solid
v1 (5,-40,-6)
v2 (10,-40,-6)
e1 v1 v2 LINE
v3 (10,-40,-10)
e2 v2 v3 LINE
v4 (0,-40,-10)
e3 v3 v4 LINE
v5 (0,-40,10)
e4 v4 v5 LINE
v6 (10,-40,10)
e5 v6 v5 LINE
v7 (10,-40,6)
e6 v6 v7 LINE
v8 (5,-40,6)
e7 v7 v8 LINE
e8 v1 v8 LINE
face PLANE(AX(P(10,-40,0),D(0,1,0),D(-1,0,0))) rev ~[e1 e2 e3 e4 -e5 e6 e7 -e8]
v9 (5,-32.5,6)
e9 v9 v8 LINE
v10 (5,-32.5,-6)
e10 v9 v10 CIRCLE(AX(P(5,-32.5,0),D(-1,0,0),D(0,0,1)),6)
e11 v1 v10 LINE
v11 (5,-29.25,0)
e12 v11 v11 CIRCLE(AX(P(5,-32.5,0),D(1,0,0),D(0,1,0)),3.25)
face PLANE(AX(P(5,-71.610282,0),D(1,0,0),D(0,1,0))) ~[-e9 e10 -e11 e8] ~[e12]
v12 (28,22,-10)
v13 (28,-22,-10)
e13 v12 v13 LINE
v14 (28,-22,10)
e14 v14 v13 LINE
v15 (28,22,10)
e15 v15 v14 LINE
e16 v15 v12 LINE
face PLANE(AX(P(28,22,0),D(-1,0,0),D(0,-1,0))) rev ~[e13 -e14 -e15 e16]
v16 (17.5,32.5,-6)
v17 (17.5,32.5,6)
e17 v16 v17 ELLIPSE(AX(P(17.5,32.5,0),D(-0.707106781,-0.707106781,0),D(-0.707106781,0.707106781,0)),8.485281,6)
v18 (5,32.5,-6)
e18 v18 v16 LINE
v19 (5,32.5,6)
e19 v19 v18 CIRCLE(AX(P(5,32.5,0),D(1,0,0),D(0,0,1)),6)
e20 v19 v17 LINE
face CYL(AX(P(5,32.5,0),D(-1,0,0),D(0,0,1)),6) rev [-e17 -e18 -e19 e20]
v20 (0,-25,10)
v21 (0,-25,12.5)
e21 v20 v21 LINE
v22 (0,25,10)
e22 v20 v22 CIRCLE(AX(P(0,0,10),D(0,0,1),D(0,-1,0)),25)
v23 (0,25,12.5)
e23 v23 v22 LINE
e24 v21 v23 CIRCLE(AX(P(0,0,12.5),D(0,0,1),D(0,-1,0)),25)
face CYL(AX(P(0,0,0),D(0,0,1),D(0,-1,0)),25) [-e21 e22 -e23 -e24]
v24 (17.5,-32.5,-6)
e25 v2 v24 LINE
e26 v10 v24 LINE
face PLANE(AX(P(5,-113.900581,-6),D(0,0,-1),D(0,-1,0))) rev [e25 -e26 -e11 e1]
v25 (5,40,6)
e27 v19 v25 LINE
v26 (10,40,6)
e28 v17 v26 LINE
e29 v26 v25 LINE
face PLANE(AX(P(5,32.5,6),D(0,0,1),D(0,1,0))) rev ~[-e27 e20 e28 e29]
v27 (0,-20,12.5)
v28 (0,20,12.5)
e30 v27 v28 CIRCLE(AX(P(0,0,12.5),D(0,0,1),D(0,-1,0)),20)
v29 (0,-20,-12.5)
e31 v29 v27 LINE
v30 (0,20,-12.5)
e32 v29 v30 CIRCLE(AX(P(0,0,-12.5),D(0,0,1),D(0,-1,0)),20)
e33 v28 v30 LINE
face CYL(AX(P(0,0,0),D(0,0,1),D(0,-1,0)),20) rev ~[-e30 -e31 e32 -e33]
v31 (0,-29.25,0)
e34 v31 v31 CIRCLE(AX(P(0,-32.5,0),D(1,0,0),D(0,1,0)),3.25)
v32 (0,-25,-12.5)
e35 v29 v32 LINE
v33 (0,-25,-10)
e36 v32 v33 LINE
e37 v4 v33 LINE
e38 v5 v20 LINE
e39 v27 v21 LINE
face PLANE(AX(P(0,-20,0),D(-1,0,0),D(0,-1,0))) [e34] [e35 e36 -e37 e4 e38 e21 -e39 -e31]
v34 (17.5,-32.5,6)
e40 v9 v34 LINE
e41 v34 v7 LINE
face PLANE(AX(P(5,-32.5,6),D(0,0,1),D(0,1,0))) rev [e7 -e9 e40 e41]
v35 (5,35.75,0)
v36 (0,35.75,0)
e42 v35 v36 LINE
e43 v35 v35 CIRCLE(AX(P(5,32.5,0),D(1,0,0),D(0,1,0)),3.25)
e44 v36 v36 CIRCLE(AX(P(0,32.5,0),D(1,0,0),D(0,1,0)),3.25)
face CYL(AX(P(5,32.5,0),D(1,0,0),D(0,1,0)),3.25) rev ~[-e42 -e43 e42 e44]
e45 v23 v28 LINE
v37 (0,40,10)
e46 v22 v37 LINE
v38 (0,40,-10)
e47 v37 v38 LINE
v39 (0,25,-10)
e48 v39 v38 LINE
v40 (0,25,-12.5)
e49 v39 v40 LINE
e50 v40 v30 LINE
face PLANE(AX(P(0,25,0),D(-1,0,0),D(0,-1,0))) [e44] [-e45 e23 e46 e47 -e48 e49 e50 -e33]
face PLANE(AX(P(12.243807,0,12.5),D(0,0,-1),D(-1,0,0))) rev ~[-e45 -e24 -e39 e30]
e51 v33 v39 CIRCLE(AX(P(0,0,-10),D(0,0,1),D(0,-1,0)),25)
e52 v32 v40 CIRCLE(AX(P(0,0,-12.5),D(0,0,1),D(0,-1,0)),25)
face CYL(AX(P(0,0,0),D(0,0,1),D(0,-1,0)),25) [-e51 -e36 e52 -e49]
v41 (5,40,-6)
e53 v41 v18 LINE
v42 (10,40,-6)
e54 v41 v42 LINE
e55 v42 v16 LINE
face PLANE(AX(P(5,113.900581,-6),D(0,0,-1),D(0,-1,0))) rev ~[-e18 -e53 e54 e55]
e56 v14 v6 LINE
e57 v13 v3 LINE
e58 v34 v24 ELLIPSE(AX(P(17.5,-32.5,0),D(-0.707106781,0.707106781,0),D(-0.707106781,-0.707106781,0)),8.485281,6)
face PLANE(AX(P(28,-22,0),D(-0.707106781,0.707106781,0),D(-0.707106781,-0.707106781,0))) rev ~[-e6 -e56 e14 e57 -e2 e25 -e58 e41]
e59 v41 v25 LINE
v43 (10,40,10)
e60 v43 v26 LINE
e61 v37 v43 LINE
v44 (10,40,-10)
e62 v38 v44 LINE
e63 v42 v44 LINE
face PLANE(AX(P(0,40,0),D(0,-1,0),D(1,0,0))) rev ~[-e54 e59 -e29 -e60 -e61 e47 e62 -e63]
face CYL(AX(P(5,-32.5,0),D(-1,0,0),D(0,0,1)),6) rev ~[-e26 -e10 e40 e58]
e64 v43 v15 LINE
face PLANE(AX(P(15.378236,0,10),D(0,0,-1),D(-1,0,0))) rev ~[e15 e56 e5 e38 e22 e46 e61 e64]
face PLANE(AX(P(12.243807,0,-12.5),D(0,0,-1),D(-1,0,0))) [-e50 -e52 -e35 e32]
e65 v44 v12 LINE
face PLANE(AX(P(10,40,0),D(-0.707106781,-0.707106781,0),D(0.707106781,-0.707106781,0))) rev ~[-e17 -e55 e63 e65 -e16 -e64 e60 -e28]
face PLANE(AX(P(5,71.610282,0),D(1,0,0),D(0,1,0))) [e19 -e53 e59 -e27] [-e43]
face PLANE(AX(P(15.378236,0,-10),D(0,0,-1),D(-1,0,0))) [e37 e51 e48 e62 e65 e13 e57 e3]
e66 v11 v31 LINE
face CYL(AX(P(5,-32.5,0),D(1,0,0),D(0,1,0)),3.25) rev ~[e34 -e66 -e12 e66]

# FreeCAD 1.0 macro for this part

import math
import FreeCAD as App
import Part
import Sketcher

V = App.Vector
Q = App.Units.Quantity

doc = App.newDocument("Part")
body = doc.addObject("PartDesign::Body", "Body")

sketch1 = body.newObject("Sketcher::SketchObject", "Sketch")
sketch1.AttachmentSupport = (doc.getObject("XY_Plane"), [""])
sketch1.MapMode = "FlatFace"
sketch1.addGeometry([
    Part.ArcOfCircle(Part.Circle(V(0, 0, 0), V(0, 0, 1), 20), math.radians(-90), math.radians(90)),
    Part.LineSegment(V(0, -20, 0), V(0, -25, 0)),
    Part.ArcOfCircle(Part.Circle(V(0, 0, 0), V(0, 0, 1), 25), math.radians(-90), math.radians(90)),
    Part.LineSegment(V(0, 25, 0), V(0, 20, 0)),
], False)
sketch1.addConstraint([
    Sketcher.Constraint("Coincident", 0, 1, 1, 1),
    Sketcher.Constraint("Coincident", 1, 2, 2, 1),
    Sketcher.Constraint("Coincident", 2, 2, 3, 1),
    Sketcher.Constraint("Coincident", 3, 2, 0, 2),
    Sketcher.Constraint("Vertical", 1),
    Sketcher.Constraint("Vertical", 3),
    Sketcher.Constraint("Coincident", 0, 3, -1, 1),
    Sketcher.Constraint("Coincident", 2, 3, -1, 1),
    Sketcher.Constraint("PointOnObject", 0, 1, -2),
    Sketcher.Constraint("PointOnObject", 2, 2, -2),
    Sketcher.Constraint("Radius", 0, Q("20 mm")),
    Sketcher.Constraint("Radius", 2, Q("25 mm")),
])
pad1 = body.newObject("PartDesign::Pad", "Pad")
pad1.Profile = sketch1
pad1.Length = 25
pad1.Midplane = True

sketch2 = body.newObject("Sketcher::SketchObject", "Sketch001")
sketch2.AttachmentSupport = (doc.getObject("XY_Plane"), [""])
sketch2.MapMode = "FlatFace"
sketch2.addGeometry([
    Part.LineSegment(V(0, 40, 0), V(0, 25, 0)),
    Part.ArcOfCircle(Part.Circle(V(0, 0, 0), V(0, 0, 1), 25), math.radians(-90), math.radians(90)),
    Part.LineSegment(V(0, -25, 0), V(0, -40, 0)),
    Part.LineSegment(V(0, -40, 0), V(10, -40, 0)),
    Part.LineSegment(V(10, -40, 0), V(28, -22, 0)),
    Part.LineSegment(V(28, -22, 0), V(28, 22, 0)),
    Part.LineSegment(V(28, 22, 0), V(10, 40, 0)),
    Part.LineSegment(V(10, 40, 0), V(0, 40, 0)),
], False)
sketch2.addConstraint([
    Sketcher.Constraint("Coincident", 0, 2, 1, 2),
    Sketcher.Constraint("Coincident", 1, 1, 2, 1),
    Sketcher.Constraint("Coincident", 2, 2, 3, 1),
    Sketcher.Constraint("Coincident", 3, 2, 4, 1),
    Sketcher.Constraint("Coincident", 4, 2, 5, 1),
    Sketcher.Constraint("Coincident", 5, 2, 6, 1),
    Sketcher.Constraint("Coincident", 6, 2, 7, 1),
    Sketcher.Constraint("Coincident", 7, 2, 0, 1),
    Sketcher.Constraint("Vertical", 0),
    Sketcher.Constraint("Vertical", 2),
    Sketcher.Constraint("Horizontal", 3),
    Sketcher.Constraint("Vertical", 5),
    Sketcher.Constraint("Horizontal", 7),
    Sketcher.Constraint("Coincident", 1, 3, -1, 1),
    Sketcher.Constraint("Symmetric", 2, 2, 7, 2, -1, 1),
    Sketcher.Constraint("PointOnObject", 0, 2, -2),
    Sketcher.Constraint("Perpendicular", 4, 6),
    Sketcher.Constraint("Vertical", 3, 2, 6, 2),
    Sketcher.Constraint("Equal", 4, 6),
    Sketcher.Constraint("Radius", 1, Q("25 mm")),
    Sketcher.Constraint("DistanceX", 3, 1, 3, 2, Q("10 mm")),
    Sketcher.Constraint("DistanceY", 0, 2, 0, 1, Q("15 mm")),
    Sketcher.Constraint("DistanceY", 5, 1, 5, 2, Q("44 mm")),
])
pad2 = body.newObject("PartDesign::Pad", "Pad001")
pad2.Profile = sketch2
pad2.Length = 20
pad2.Midplane = True

sketch3 = body.newObject("Sketcher::SketchObject", "Sketch002")
sketch3.AttachmentSupport = (doc.getObject("YZ_Plane"), [""])
sketch3.MapMode = "FlatFace"
sketch3.AttachmentOffset = App.Placement(V(0, 0, 5), App.Rotation())
sketch3.addGeometry([
    Part.ArcOfCircle(Part.Circle(V(32, 0, 0), V(0, 0, 1), 6), math.radians(90), math.radians(270)),
    Part.LineSegment(V(32, -6, 0), V(114, -6, 0)),
    Part.LineSegment(V(114, -6, 0), V(114, 6, 0)),
    Part.LineSegment(V(114, 6, 0), V(32, 6, 0)),
], False)
sketch3.addConstraint([
    Sketcher.Constraint("Tangent", 0, 2, 1, 1),
    Sketcher.Constraint("Coincident", 1, 2, 2, 1),
    Sketcher.Constraint("Coincident", 2, 2, 3, 1),
    Sketcher.Constraint("Tangent", 3, 2, 0, 1),
    Sketcher.Constraint("Horizontal", 1),
    Sketcher.Constraint("Vertical", 2),
    Sketcher.Constraint("Horizontal", 3),
    Sketcher.Constraint("PointOnObject", 0, 3, -1),
    Sketcher.Constraint("Radius", 0, Q("6 mm")),
    Sketcher.Constraint("DistanceX", -1, 1, 0, 3, Q("32.5 mm")),
    Sketcher.Constraint("DistanceX", 1, 1, 1, 2, Q("81.400581 mm")),
])
pocket1 = body.newObject("PartDesign::Pocket", "Pocket")
pocket1.Profile = sketch3
pocket1.Type = "ThroughAll"
pocket1.Reversed = True
doc.recompute()

mirrored = body.newObject("PartDesign::Mirrored", "Mirrored")
mirrored.Originals = [pocket1]
mirrored.MirrorPlane = (doc.getObject("XZ_Plane"), [""])
body.Tip = mirrored

sketch4 = body.newObject("Sketcher::SketchObject", "Sketch003")
sketch4.AttachmentSupport = (doc.getObject("YZ_Plane"), [""])
sketch4.MapMode = "FlatFace"
sketch4.AttachmentOffset = App.Placement(V(0, 0, 5), App.Rotation())
sketch4.addGeometry([
    Part.Circle(V(32.5, 0, 0), V(0, 0, 1), 3.2),
    Part.Circle(V(-32.5, 0, 0), V(0, 0, 1), 3.2),
], False)
sketch4.addConstraint([
    Sketcher.Constraint("Equal", 0, 1),
    Sketcher.Constraint("Symmetric", 0, 3, 1, 3, -1, 1),
    Sketcher.Constraint("PointOnObject", 0, 3, -1),
    Sketcher.Constraint("Diameter", 0, Q("6.5 mm")),
    Sketcher.Constraint("DistanceX", 1, 3, 0, 3, Q("65 mm")),
])
pocket2 = body.newObject("PartDesign::Pocket", "Pocket001")
pocket2.Profile = sketch4
pocket2.Length = 10

doc.recompute()
